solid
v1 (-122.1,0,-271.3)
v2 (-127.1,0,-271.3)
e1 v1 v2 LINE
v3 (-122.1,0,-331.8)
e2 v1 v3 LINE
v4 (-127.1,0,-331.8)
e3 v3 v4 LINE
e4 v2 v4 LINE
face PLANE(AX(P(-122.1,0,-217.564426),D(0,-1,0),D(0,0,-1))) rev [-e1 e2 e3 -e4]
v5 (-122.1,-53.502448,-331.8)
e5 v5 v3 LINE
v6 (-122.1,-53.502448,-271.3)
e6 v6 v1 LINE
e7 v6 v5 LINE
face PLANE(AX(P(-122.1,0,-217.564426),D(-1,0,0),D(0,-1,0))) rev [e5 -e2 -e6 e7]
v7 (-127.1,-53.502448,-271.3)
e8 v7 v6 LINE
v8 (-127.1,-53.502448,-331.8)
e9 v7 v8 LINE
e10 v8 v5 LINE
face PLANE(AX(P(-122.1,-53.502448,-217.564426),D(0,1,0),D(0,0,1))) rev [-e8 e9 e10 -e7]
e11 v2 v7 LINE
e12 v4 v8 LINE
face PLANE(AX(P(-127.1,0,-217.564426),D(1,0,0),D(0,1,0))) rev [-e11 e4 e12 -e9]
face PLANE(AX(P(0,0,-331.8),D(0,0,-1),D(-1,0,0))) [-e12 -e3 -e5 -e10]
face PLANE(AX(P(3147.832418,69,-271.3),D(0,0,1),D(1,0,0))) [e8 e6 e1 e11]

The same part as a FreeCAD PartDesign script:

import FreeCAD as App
import Part
import Sketcher

V = App.Vector
Q = App.Units.Quantity

doc = App.newDocument("Part")
body = doc.addObject("PartDesign::Body", "Body")

sketch1 = body.newObject("Sketcher::SketchObject", "Sketch")
sketch1.AttachmentSupport = (doc.getObject("XY_Plane"), [""])
sketch1.MapMode = "FlatFace"
sketch1.AttachmentOffset = App.Placement(V(0, 0, -331.8), App.Rotation())
sketch1.addGeometry(Part.LineSegment(V(-127, 0, 0), V(-127, -54, 0)), False)
sketch1.addGeometry(Part.LineSegment(V(-127, -54, 0), V(-122, -54, 0)), False)
sketch1.addGeometry(Part.LineSegment(V(-122, -54, 0), V(-122, 0, 0)), False)
sketch1.addGeometry(Part.LineSegment(V(-122, 0, 0), V(-127, 0, 0)), False)
sketch1.addConstraint(Sketcher.Constraint("Coincident", 0, 2, 1, 1))
sketch1.addConstraint(Sketcher.Constraint("Coincident", 1, 2, 2, 1))
sketch1.addConstraint(Sketcher.Constraint("Coincident", 2, 2, 3, 1))
sketch1.addConstraint(Sketcher.Constraint("Coincident", 3, 2, 0, 1))
sketch1.addConstraint(Sketcher.Constraint("Vertical", 0))
sketch1.addConstraint(Sketcher.Constraint("Horizontal", 1))
sketch1.addConstraint(Sketcher.Constraint("Vertical", 2))
sketch1.addConstraint(Sketcher.Constraint("Horizontal", 3))
sketch1.addConstraint(Sketcher.Constraint("PointOnObject", 2, 2, -1))
sketch1.addConstraint(Sketcher.Constraint("DistanceX", 1, 1, 1, 2, Q("5 mm")))
sketch1.addConstraint(Sketcher.Constraint("DistanceX", 0, 2, -1, 1, Q("127.1 mm")))
sketch1.addConstraint(Sketcher.Constraint("DistanceY", 0, 2, 0, 1, Q("53.502448 mm")))
pad1 = body.newObject("PartDesign::Pad", "Pad")
pad1.Profile = sketch1
pad1.Length = 60.5

doc.recompute()
